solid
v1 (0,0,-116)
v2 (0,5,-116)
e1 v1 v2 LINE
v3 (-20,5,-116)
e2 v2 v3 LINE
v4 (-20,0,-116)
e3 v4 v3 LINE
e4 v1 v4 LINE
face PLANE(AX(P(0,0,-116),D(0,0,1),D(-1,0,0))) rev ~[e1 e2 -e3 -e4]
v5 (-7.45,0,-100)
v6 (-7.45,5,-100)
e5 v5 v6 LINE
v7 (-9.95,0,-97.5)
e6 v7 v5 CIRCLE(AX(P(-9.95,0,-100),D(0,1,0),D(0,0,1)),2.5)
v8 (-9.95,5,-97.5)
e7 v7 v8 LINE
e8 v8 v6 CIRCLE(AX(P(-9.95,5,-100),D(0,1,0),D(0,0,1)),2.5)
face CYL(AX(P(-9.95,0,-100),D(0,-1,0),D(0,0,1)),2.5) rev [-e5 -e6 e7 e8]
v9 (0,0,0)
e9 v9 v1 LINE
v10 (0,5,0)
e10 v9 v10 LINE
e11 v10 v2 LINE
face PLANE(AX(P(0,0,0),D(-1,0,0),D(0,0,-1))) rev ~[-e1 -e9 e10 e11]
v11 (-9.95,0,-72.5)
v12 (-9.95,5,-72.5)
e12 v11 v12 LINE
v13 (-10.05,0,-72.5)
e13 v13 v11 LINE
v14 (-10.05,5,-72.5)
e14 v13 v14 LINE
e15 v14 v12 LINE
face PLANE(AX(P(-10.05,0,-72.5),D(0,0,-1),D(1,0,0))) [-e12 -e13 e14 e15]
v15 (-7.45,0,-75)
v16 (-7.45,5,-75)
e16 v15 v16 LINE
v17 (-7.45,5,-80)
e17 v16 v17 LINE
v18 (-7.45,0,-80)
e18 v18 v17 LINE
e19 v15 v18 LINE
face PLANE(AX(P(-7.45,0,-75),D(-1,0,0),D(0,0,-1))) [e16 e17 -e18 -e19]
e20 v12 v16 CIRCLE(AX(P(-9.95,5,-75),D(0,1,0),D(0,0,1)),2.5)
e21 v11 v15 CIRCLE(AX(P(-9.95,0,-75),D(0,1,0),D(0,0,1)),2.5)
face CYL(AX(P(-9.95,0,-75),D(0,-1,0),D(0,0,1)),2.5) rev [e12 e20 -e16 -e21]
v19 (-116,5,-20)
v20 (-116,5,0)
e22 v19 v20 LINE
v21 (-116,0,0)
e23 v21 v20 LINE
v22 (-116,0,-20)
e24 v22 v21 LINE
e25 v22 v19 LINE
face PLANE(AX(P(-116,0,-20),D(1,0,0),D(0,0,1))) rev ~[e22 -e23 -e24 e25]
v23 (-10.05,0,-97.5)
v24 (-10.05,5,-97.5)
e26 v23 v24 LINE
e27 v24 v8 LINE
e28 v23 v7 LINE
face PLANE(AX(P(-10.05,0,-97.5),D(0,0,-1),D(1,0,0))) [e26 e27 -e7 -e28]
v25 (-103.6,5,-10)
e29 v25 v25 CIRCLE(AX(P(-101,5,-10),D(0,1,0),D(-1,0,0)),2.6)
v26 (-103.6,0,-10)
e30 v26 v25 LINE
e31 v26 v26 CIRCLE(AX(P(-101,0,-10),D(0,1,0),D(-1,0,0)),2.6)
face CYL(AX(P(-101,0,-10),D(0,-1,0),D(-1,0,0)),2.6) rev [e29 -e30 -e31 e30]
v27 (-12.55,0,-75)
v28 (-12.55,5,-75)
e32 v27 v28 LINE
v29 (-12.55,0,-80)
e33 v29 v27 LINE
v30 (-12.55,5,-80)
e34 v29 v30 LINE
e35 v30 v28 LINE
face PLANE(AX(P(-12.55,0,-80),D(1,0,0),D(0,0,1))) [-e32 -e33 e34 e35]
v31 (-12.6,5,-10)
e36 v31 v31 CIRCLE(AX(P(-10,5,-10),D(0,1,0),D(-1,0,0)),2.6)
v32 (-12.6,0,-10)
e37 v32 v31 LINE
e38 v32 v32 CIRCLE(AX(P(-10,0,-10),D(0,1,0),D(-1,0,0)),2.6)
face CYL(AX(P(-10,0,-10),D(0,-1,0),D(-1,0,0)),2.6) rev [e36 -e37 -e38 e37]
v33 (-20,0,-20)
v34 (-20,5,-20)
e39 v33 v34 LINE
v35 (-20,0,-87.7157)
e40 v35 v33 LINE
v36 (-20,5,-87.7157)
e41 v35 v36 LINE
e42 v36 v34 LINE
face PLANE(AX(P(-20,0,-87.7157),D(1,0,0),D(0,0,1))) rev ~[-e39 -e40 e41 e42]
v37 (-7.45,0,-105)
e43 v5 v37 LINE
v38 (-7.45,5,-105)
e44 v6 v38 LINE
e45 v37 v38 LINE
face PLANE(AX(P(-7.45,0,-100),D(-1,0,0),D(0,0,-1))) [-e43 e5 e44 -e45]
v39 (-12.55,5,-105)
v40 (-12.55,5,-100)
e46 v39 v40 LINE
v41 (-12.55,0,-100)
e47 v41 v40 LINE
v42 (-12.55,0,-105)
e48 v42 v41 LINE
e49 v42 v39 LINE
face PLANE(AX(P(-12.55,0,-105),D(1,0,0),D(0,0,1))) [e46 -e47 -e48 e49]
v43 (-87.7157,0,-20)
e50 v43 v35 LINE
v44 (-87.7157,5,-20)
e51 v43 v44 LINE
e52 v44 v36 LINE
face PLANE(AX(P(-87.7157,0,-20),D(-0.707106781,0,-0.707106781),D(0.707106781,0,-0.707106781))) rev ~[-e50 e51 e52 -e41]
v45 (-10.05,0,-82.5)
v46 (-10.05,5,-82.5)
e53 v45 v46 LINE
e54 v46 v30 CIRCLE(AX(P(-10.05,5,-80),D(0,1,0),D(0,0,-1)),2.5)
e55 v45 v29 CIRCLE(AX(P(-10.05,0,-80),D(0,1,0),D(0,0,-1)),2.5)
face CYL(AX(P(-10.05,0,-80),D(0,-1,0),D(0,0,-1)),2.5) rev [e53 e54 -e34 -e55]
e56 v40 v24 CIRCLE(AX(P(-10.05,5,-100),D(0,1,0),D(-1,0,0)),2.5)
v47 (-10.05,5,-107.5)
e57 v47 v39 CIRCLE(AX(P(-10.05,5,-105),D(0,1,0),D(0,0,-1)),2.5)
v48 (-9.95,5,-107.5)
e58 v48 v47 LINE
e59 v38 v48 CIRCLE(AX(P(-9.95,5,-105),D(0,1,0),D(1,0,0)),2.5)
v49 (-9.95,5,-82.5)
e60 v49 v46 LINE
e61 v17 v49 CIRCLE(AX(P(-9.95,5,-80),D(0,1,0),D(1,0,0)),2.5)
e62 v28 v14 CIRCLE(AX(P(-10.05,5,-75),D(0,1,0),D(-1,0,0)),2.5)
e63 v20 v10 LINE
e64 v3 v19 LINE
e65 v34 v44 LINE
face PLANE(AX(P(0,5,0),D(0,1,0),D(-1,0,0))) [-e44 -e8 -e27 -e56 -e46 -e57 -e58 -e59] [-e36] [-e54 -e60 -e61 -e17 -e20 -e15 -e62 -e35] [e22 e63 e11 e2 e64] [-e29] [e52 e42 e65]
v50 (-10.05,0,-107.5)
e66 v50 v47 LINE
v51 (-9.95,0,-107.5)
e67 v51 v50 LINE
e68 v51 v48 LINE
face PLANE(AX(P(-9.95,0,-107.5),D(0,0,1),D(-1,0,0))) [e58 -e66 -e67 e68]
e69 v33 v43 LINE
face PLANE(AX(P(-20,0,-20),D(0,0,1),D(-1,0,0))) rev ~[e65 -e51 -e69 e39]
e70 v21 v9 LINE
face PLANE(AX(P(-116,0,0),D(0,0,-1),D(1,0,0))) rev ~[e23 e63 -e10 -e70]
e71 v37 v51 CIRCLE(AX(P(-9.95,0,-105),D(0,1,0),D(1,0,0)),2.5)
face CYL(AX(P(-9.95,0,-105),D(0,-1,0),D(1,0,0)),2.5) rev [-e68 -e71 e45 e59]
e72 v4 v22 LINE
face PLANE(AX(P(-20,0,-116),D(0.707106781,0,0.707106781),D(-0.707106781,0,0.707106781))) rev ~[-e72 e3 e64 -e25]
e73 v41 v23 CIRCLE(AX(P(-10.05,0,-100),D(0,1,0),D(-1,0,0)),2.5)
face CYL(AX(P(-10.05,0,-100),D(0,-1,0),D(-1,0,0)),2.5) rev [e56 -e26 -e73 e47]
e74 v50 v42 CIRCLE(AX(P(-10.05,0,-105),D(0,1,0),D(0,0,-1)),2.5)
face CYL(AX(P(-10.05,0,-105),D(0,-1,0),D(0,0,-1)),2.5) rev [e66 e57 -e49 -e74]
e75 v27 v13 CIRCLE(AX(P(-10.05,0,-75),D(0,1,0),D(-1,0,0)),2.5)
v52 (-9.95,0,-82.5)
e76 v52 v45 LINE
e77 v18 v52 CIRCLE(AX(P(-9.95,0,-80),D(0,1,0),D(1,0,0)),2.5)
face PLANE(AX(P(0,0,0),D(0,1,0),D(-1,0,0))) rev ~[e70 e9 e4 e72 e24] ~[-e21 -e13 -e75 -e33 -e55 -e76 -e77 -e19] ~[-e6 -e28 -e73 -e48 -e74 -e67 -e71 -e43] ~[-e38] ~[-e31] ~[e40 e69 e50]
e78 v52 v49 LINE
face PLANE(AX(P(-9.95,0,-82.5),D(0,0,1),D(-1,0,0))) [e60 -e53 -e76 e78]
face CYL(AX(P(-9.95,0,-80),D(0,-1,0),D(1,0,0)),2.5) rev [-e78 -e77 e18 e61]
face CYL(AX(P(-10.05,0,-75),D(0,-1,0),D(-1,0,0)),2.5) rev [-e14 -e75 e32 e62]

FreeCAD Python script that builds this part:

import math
import FreeCAD as App
import Part
import Sketcher
Q = App.Units.Quantity


def add_polygon(sketch, points):
    """Adds a closed chain of lines whose ends are joined by coincident constraints."""
    first, n = sketch.GeometryCount, len(points)
    for a, b in zip(points, points[1:] + points[:1]):
        sketch.addGeometry(Part.LineSegment(App.Vector(*a, 0), App.Vector(*b, 0)), False)
    for i in range(n):
        sketch.addConstraint(Sketcher.Constraint("Coincident", first + i, 2, first + (i + 1) % n, 1))

doc = App.newDocument("Part")
params = doc.addObject("Spreadsheet::Sheet", "Params")
for row, (alias, value) in enumerate([
    ("sketch1_diameter", "5.2 mm"),
    ("sketch1_radius", "2.5 mm"),
    ("sketch1_width", "116 mm"),
    ("sketch1_width2", "20 mm"),
    ("pad1_length", "5 mm"),
], start=1):
    params.set(f"A{row}", alias)
    params.set(f"B{row}", "=" + value)
    params.setAlias(f"B{row}", alias)

body = doc.addObject("PartDesign::Body", "Body")

sketch1 = body.newObject("Sketcher::SketchObject", "Sketch")
sketch1.AttachmentSupport = (doc.getObject("XZ_Plane"), [""])
sketch1.MapMode = "FlatFace"
add_polygon(sketch1, [(-116, 0), (0, 0), (0, -116), (-20, -116), (-116, -20)])
sketch1.addGeometry(Part.LineSegment(App.Vector(-9.95, -97.5, 0), App.Vector(-10.05, -97.5, 0)), False)
sketch1.addGeometry(Part.ArcOfCircle(Part.Circle(App.Vector(-10.05, -100, 0), App.Vector(0, 0, 1), 2.5), math.radians(90), math.radians(180)), False)
sketch1.addGeometry(Part.LineSegment(App.Vector(-12.55, -100, 0), App.Vector(-12.55, -105, 0)), False)
sketch1.addGeometry(Part.ArcOfCircle(Part.Circle(App.Vector(-10.05, -105, 0), App.Vector(0, 0, 1), 2.5), math.radians(180), math.radians(270)), False)
sketch1.addGeometry(Part.LineSegment(App.Vector(-10.05, -107.5, 0), App.Vector(-9.95, -107.5, 0)), False)
sketch1.addGeometry(Part.ArcOfCircle(Part.Circle(App.Vector(-9.95, -105, 0), App.Vector(0, 0, 1), 2.5), math.radians(-90), math.radians(0)), False)
sketch1.addGeometry(Part.LineSegment(App.Vector(-7.45, -105, 0), App.Vector(-7.45, -100, 0)), False)
sketch1.addGeometry(Part.ArcOfCircle(Part.Circle(App.Vector(-9.95, -100, 0), App.Vector(0, 0, 1), 2.5), math.radians(0), math.radians(90)), False)
sketch1.addGeometry(Part.LineSegment(App.Vector(-9.95, -72.5, 0), App.Vector(-10.05, -72.5, 0)), False)
sketch1.addGeometry(Part.ArcOfCircle(Part.Circle(App.Vector(-10.05, -75, 0), App.Vector(0, 0, 1), 2.5), math.radians(90), math.radians(180)), False)
sketch1.addGeometry(Part.LineSegment(App.Vector(-12.55, -75, 0), App.Vector(-12.55, -80, 0)), False)
sketch1.addGeometry(Part.ArcOfCircle(Part.Circle(App.Vector(-10.05, -80, 0), App.Vector(0, 0, 1), 2.5), math.radians(180), math.radians(270)), False)
sketch1.addGeometry(Part.LineSegment(App.Vector(-10.05, -82.5, 0), App.Vector(-9.95, -82.5, 0)), False)
sketch1.addGeometry(Part.ArcOfCircle(Part.Circle(App.Vector(-9.95, -80, 0), App.Vector(0, 0, 1), 2.5), math.radians(-90), math.radians(0)), False)
sketch1.addGeometry(Part.LineSegment(App.Vector(-7.45, -80, 0), App.Vector(-7.45, -75, 0)), False)
sketch1.addGeometry(Part.ArcOfCircle(Part.Circle(App.Vector(-9.95, -75, 0), App.Vector(0, 0, 1), 2.5), math.radians(0), math.radians(90)), False)
add_polygon(sketch1, [(-20, -20), (-87.7157, -20), (-20, -87.7157)])
sketch1.addGeometry(Part.Circle(App.Vector(-10, -10, 0), App.Vector(0, 0, 1), 2.6), False)
sketch1.addGeometry(Part.Circle(App.Vector(-101, -10, 0), App.Vector(0, 0, 1), 2.6), False)
sketch1.addConstraint([
    Sketcher.Constraint("Tangent", 5, 2, 6, 1),
    Sketcher.Constraint("Tangent", 6, 2, 7, 1),
    Sketcher.Constraint("Tangent", 7, 2, 8, 1),
    Sketcher.Constraint("Tangent", 8, 2, 9, 1),
    Sketcher.Constraint("Tangent", 9, 2, 10, 1),
    Sketcher.Constraint("Tangent", 10, 2, 11, 1),
    Sketcher.Constraint("Tangent", 11, 2, 12, 1),
    Sketcher.Constraint("Tangent", 12, 2, 5, 1),
    Sketcher.Constraint("Tangent", 13, 2, 14, 1),
    Sketcher.Constraint("Tangent", 14, 2, 15, 1),
    Sketcher.Constraint("Tangent", 15, 2, 16, 1),
    Sketcher.Constraint("Tangent", 16, 2, 17, 1),
    Sketcher.Constraint("Tangent", 17, 2, 18, 1),
    Sketcher.Constraint("Tangent", 18, 2, 19, 1),
    Sketcher.Constraint("Tangent", 19, 2, 20, 1),
    Sketcher.Constraint("Tangent", 20, 2, 13, 1),
    Sketcher.Constraint("Horizontal", 0),
    Sketcher.Constraint("Vertical", 1),
    Sketcher.Constraint("Horizontal", 2),
    Sketcher.Constraint("Vertical", 4),
    Sketcher.Constraint("Horizontal", 5),
    Sketcher.Constraint("Vertical", 7),
    Sketcher.Constraint("Horizontal", 9),
    Sketcher.Constraint("Vertical", 11),
    Sketcher.Constraint("Horizontal", 13),
    Sketcher.Constraint("Vertical", 15),
    Sketcher.Constraint("Horizontal", 17),
    Sketcher.Constraint("Vertical", 19),
    Sketcher.Constraint("Horizontal", 21),
    Sketcher.Constraint("Vertical", 23),
    Sketcher.Constraint("Coincident", 0, 2, -1, 1),
    Sketcher.Constraint("Equal", 6, 8),
    Sketcher.Constraint("Equal", 8, 10),
    Sketcher.Constraint("Equal", 10, 12),
    Sketcher.Constraint("Equal", 12, 14),
    Sketcher.Constraint("Equal", 14, 16),
    Sketcher.Constraint("Equal", 16, 18),
    Sketcher.Constraint("Equal", 18, 20),
    Sketcher.Constraint("Equal", 24, 25),
    Sketcher.Constraint("Parallel", 3, 22),
    Sketcher.Constraint("Horizontal", 24, 3, 25, 3),
    Sketcher.Constraint("Horizontal", 3, 2, 21, 2),
    Sketcher.Constraint("Vertical", 8, 3, 14, 3),
    Sketcher.Constraint("Vertical", 12, 3, 18, 3),
    Sketcher.Constraint("Vertical", 2, 2, 22, 2),
    Sketcher.Constraint("Equal", 0, 1),
    Sketcher.Constraint("Equal", 2, 4),
    Sketcher.Constraint("Equal", 11, 15),
    Sketcher.Constraint("Diameter", 24, Q("5.2 mm")),
    Sketcher.Constraint("Radius", 6, Q("2.5 mm")),
    Sketcher.Constraint("DistanceX", 0, 1, 0, 2, Q("116 mm")),
    Sketcher.Constraint("DistanceX", 2, 2, 2, 1, Q("20 mm")),
    Sketcher.Constraint("DistanceX", 24, 3, -1, 1, Q("10 mm")),
    Sketcher.Constraint("DistanceY", 24, 3, -1, 1, Q("10 mm")),
    Sketcher.Constraint("DistanceY", 6, 3, 14, 3, Q("25 mm")),
    Sketcher.Constraint("DistanceY", 6, 3, 16, 3, Q("20 mm")),
    Sketcher.Constraint("DistanceX", 3, 2, 25, 3, Q("15 mm")),
    Sketcher.Constraint("DistanceX", 7, 2, 10, 2, Q("5.1 mm")),
    Sketcher.Constraint("DistanceY", 6, 3, -1, 1, Q("100 mm")),
    Sketcher.Constraint("DistanceX", 6, 3, -1, 1, Q("10.05 mm")),
    Sketcher.Constraint("DistanceX", 21, 2, 21, 1, Q("67.7157 mm")),
])
sketch1.setExpression("Constraints[56]", "Params.sketch1_diameter")
sketch1.setExpression("Constraints[57]", "Params.sketch1_radius")
sketch1.setExpression("Constraints[58]", "Params.sketch1_width")
sketch1.setExpression("Constraints[59]", "Params.sketch1_width2")
pad1 = body.newObject("PartDesign::Pad", "Pad")
pad1.Profile = sketch1
pad1.setExpression("Length", "Params.pad1_length")
pad1.Reversed = True

doc.recompute()
